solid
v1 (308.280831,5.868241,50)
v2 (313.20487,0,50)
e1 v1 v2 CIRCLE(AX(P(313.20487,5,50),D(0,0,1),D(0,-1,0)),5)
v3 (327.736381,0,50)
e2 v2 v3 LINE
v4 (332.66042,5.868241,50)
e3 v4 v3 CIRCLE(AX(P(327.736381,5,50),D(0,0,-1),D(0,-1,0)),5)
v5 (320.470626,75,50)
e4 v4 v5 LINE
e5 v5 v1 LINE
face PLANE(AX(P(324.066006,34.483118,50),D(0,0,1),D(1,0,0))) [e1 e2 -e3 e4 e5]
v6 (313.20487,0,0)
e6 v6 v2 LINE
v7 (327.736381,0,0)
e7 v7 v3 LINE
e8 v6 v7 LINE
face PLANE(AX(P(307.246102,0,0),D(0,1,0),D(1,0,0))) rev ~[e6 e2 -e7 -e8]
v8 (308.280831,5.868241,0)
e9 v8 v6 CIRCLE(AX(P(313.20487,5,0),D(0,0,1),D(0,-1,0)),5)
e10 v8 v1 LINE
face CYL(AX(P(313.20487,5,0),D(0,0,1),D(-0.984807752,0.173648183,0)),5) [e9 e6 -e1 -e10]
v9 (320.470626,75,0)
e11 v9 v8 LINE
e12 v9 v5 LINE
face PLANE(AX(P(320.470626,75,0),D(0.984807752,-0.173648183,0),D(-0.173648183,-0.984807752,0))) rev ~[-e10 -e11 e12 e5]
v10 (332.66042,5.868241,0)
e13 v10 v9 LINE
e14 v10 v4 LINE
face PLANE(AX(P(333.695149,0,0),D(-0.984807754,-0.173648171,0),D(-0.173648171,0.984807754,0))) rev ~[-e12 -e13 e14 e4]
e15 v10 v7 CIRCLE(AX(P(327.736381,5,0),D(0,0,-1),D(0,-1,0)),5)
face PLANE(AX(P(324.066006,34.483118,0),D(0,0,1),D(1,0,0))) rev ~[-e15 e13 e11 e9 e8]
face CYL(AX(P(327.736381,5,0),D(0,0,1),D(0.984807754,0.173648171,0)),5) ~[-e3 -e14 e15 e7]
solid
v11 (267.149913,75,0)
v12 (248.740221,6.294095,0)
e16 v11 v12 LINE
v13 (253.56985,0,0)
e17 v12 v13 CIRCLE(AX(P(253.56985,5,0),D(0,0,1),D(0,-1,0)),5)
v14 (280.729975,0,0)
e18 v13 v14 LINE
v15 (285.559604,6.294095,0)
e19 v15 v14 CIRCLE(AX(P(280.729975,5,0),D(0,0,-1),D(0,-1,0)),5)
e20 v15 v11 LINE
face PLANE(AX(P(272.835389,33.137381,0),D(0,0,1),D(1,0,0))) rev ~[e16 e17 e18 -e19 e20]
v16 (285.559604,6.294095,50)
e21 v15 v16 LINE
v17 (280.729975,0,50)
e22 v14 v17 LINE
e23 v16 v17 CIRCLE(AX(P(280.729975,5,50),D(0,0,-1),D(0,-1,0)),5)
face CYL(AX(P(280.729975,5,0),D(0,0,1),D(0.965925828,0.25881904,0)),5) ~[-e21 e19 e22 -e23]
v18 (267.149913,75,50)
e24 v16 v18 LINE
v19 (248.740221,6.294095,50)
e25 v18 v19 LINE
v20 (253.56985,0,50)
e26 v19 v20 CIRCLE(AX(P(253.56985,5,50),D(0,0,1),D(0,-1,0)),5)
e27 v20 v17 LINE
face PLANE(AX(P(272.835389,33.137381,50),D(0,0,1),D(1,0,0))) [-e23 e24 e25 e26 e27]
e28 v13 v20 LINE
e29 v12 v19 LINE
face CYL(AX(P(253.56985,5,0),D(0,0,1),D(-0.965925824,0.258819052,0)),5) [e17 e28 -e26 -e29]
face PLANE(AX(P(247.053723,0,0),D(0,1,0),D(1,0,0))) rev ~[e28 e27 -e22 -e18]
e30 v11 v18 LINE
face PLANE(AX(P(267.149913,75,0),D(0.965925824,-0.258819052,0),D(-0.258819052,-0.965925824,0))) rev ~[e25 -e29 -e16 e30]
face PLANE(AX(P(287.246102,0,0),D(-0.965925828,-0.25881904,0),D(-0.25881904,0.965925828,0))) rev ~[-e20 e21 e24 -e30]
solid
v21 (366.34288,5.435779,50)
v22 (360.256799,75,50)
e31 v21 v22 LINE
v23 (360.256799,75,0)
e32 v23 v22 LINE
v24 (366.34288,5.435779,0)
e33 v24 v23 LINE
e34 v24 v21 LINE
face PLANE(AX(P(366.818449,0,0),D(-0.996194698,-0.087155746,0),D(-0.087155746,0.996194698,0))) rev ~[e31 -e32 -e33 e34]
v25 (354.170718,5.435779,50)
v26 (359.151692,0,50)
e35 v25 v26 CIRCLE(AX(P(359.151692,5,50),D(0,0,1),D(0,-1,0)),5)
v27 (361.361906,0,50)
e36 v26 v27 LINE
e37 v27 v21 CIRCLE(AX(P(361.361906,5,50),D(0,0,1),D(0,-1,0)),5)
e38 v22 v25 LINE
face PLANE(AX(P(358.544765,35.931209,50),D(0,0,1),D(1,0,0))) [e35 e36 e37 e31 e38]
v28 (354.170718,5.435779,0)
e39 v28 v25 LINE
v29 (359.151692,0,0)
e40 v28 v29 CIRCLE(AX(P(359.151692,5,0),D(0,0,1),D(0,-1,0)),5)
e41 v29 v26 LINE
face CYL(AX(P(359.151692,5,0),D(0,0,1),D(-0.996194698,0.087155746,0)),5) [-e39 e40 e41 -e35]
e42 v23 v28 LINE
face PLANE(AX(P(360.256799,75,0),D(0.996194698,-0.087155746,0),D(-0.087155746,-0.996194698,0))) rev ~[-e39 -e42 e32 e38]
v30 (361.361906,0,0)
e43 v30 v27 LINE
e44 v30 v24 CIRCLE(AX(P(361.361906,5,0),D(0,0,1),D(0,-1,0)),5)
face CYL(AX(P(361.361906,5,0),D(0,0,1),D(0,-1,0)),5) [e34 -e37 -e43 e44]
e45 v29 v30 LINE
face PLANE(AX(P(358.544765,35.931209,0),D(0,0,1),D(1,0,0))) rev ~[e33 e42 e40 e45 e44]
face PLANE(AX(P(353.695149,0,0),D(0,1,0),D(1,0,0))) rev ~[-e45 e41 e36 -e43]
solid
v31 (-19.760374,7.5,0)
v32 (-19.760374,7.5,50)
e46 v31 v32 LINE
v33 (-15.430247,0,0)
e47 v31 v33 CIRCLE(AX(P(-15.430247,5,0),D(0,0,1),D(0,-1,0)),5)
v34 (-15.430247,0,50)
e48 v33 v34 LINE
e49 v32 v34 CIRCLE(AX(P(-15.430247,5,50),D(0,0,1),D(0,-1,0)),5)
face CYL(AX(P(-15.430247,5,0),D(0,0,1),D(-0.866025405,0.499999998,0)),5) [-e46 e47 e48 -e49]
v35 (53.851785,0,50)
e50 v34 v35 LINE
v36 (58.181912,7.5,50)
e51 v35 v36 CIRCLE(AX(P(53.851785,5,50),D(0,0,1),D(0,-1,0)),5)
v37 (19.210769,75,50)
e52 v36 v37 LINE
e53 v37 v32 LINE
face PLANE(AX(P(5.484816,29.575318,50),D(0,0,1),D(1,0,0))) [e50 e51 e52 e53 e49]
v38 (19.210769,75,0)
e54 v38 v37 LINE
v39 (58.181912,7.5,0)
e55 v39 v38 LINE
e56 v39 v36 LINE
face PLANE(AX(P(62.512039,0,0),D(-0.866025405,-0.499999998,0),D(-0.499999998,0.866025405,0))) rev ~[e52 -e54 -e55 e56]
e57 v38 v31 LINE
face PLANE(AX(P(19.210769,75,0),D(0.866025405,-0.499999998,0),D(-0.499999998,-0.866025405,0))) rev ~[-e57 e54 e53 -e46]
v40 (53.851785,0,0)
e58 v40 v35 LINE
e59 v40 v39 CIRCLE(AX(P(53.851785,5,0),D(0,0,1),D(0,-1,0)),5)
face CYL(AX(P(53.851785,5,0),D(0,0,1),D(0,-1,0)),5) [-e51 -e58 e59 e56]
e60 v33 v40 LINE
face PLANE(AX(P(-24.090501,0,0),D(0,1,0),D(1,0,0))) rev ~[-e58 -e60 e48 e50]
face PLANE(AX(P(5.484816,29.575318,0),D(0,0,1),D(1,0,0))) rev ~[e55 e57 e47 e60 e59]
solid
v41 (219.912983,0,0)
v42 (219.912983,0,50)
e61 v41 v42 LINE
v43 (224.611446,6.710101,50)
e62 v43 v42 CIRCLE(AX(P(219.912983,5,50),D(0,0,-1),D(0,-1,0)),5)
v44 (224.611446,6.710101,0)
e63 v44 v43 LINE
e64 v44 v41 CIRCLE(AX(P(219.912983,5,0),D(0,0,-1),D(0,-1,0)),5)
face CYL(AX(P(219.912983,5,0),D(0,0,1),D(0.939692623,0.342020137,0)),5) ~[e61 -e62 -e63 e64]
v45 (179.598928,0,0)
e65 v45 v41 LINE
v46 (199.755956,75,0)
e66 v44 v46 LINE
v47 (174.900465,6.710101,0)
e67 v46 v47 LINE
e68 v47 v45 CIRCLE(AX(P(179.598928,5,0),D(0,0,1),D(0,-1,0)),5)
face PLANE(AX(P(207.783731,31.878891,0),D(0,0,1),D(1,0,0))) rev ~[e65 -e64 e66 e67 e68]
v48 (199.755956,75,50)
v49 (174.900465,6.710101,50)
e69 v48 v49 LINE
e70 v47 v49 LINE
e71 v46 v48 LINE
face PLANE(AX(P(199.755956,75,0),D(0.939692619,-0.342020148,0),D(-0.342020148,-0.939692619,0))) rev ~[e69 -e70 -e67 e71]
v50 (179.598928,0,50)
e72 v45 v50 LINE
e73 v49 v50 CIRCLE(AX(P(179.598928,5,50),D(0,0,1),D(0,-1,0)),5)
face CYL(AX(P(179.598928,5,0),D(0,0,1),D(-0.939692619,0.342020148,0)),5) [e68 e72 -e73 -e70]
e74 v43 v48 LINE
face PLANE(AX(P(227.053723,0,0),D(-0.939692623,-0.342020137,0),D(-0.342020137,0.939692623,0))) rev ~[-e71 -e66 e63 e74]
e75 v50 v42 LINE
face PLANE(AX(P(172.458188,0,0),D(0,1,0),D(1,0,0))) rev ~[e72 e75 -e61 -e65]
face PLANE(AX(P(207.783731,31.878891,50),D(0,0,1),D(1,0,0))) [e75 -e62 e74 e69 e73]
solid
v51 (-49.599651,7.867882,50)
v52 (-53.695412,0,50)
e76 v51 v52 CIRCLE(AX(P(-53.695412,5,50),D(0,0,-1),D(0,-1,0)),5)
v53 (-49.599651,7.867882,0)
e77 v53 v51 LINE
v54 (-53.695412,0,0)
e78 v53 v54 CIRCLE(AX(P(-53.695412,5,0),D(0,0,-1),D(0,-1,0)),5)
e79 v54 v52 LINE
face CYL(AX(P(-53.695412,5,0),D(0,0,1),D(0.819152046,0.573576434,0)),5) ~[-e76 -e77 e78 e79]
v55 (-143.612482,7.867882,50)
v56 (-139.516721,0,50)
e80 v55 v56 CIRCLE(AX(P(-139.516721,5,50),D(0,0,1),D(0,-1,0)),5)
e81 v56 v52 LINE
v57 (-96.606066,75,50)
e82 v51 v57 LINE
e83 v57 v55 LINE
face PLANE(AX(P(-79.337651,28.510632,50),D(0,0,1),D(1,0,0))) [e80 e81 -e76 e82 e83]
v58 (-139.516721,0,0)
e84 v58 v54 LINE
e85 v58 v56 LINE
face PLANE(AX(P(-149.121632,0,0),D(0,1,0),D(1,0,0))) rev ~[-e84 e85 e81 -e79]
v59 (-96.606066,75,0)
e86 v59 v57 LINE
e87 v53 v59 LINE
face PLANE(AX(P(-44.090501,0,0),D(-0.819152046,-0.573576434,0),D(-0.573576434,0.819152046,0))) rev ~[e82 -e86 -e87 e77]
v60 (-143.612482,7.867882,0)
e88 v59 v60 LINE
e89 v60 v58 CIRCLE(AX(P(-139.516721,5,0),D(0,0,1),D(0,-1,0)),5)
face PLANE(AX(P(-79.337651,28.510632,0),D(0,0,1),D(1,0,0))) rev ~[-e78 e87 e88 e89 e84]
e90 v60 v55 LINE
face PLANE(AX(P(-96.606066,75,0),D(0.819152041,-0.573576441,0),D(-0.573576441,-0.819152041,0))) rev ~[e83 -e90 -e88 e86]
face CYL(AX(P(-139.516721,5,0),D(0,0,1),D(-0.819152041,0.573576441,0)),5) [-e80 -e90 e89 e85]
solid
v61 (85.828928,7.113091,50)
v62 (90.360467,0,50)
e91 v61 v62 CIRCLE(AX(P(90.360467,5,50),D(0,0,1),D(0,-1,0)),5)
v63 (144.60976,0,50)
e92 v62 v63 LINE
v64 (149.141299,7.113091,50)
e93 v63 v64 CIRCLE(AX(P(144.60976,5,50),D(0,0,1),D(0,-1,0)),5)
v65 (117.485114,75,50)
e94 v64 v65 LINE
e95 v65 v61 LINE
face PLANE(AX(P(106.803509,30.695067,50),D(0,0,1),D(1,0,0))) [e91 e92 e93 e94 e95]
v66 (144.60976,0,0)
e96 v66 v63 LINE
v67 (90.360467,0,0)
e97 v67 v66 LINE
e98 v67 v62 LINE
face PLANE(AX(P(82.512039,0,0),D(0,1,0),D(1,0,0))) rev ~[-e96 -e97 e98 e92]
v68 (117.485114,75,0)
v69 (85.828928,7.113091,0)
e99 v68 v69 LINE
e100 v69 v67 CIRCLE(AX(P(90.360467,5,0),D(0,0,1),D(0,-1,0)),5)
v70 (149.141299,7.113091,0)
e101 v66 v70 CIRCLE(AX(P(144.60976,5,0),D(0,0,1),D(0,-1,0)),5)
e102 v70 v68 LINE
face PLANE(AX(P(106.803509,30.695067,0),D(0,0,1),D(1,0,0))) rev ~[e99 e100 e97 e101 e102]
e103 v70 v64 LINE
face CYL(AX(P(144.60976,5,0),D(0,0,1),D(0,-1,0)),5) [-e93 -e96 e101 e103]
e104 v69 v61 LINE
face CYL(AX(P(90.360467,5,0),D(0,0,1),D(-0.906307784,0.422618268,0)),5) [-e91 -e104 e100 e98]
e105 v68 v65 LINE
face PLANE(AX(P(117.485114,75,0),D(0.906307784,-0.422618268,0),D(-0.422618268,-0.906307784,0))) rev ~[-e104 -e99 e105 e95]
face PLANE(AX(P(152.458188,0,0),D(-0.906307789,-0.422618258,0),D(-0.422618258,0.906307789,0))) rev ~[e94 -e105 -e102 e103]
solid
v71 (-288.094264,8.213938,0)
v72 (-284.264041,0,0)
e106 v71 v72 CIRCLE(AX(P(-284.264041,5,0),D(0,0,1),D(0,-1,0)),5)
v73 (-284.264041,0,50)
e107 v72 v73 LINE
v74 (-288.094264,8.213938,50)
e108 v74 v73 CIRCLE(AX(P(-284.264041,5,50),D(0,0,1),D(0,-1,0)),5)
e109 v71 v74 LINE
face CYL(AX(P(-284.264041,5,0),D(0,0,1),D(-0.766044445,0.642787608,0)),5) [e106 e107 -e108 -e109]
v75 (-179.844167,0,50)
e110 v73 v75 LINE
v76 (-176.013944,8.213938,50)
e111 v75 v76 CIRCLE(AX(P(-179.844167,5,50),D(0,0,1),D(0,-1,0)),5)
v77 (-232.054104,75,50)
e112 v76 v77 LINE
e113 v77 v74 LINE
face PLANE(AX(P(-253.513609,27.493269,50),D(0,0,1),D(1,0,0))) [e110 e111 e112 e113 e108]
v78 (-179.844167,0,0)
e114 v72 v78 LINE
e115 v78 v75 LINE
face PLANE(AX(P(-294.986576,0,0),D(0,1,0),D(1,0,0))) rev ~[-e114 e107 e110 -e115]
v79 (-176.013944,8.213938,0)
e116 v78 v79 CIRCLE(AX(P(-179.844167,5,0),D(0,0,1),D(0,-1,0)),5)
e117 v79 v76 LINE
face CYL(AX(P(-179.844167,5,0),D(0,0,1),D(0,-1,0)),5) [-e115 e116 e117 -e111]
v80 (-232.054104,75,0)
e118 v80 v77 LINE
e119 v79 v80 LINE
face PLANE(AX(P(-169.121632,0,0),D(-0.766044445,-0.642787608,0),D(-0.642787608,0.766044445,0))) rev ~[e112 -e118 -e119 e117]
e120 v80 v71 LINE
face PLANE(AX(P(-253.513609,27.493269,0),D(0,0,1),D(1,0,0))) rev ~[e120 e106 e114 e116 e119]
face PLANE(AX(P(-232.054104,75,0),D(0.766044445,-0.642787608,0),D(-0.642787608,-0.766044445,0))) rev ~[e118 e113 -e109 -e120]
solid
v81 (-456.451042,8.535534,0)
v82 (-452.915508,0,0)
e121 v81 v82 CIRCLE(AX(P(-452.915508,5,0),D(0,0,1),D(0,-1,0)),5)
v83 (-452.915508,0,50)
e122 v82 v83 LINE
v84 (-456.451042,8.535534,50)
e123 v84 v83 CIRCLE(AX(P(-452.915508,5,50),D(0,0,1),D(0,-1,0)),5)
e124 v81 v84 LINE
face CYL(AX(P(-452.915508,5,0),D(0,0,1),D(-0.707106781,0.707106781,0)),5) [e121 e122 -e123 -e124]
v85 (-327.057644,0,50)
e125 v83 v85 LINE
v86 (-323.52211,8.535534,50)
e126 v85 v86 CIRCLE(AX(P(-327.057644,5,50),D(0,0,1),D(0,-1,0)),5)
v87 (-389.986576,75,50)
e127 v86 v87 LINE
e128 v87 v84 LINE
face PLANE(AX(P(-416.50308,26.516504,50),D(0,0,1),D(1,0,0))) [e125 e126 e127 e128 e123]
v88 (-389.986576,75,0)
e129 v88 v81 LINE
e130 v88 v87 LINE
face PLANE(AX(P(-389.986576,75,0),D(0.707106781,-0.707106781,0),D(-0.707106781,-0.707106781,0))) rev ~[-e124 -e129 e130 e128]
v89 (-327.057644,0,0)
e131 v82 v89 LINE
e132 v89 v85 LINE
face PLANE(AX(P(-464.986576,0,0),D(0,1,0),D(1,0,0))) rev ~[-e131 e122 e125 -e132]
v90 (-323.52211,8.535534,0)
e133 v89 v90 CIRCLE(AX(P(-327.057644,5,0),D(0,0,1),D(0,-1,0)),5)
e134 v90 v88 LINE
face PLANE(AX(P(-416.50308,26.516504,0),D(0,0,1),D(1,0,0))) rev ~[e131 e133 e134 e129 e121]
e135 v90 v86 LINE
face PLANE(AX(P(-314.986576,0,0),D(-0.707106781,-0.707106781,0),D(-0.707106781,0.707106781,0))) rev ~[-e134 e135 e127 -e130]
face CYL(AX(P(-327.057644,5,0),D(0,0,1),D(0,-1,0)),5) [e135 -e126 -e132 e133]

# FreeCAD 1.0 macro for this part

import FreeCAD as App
import Part
import Sketcher
Q = App.Units.Quantity


def edges_at(feature, points):
    """Names of the edges that pass closest to the given points."""
    edges = feature.Shape.Edges
    near = lambda p: min(range(len(edges)), key=lambda i: edges[i].distToShape(Part.Vertex(*p))[0])
    return sorted({f"Edge{near(p) + 1}" for p in points})


def add_polygon(sketch, points):
    """Adds a closed chain of lines whose ends are joined by coincident constraints."""
    first, n = sketch.GeometryCount, len(points)
    for a, b in zip(points, points[1:] + points[:1]):
        sketch.addGeometry(Part.LineSegment(App.Vector(*a, 0), App.Vector(*b, 0)), False)
    for i in range(n):
        sketch.addConstraint(Sketcher.Constraint("Coincident", first + i, 2, first + (i + 1) % n, 1))

doc = App.newDocument("Part")
body = doc.addObject("PartDesign::Body", "Body")
body.AllowCompound = True

sketch1 = body.newObject("Sketcher::SketchObject", "Sketch")
sketch1.AttachmentSupport = (doc.getObject("XY_Plane"), [""])
sketch1.MapMode = "FlatFace"
add_polygon(sketch1, [(-389.986576, 75), (-464.986576, 0), (-314.986576, 0)])
add_polygon(sketch1, [(-232.054104, 75), (-294.986576, 0), (-169.121632, 0)])
add_polygon(sketch1, [(-44.090501, 0), (-96.606066, 75), (-149.121632, 0)])
add_polygon(sketch1, [(19.210769, 75), (-24.090501, 0), (62.512039, 0)])
add_polygon(sketch1, [(117.485114, 75), (82.512039, 0), (152.458188, 0)])
add_polygon(sketch1, [(227.053723, 0), (199.755956, 75), (172.458188, 0)])
add_polygon(sketch1, [(287.246102, 0), (267.149913, 75), (247.053723, 0)])
add_polygon(sketch1, [(333.695149, 0), (320.470626, 75), (307.246102, 0)])
add_polygon(sketch1, [(360.256799, 75), (353.695149, 0), (366.818449, 0)])
sketch1.addConstraint([
    Sketcher.Constraint("Horizontal", 1),
    Sketcher.Constraint("Horizontal", 4),
    Sketcher.Constraint("Horizontal", 8),
    Sketcher.Constraint("Horizontal", 10),
    Sketcher.Constraint("Horizontal", 13),
    Sketcher.Constraint("Horizontal", 17),
    Sketcher.Constraint("Horizontal", 20),
    Sketcher.Constraint("Horizontal", 23),
    Sketcher.Constraint("Horizontal", 25),
    Sketcher.Constraint("PointOnObject", 0, 2, -1),
    Sketcher.Constraint("PointOnObject", 3, 2, -1),
    Sketcher.Constraint("PointOnObject", 7, 2, -1),
    Sketcher.Constraint("PointOnObject", 9, 2, -1),
    Sketcher.Constraint("PointOnObject", 12, 2, -1),
    Sketcher.Constraint("PointOnObject", 16, 2, -1),
    Sketcher.Constraint("PointOnObject", 19, 2, -1),
    Sketcher.Constraint("PointOnObject", 22, 2, -1),
    Sketcher.Constraint("PointOnObject", 24, 2, -1),
    Sketcher.Constraint("Perpendicular", 0, 2),
    Sketcher.Constraint("Horizontal", 2, 2, 5, 2),
    Sketcher.Constraint("Horizontal", 5, 2, 6, 2),
    Sketcher.Constraint("Horizontal", 6, 2, 11, 2),
    Sketcher.Constraint("Horizontal", 11, 2, 14, 2),
    Sketcher.Constraint("Horizontal", 14, 2, 15, 2),
    Sketcher.Constraint("Horizontal", 15, 2, 18, 2),
    Sketcher.Constraint("Horizontal", 18, 2, 21, 2),
    Sketcher.Constraint("Horizontal", 21, 2, 26, 2),
    Sketcher.Constraint("Equal", 0, 2),
    Sketcher.Constraint("Equal", 3, 5),
    Sketcher.Constraint("Equal", 6, 7),
    Sketcher.Constraint("Equal", 9, 11),
    Sketcher.Constraint("Equal", 12, 14),
    Sketcher.Constraint("Equal", 15, 16),
    Sketcher.Constraint("Equal", 18, 19),
    Sketcher.Constraint("Equal", 21, 22),
    Sketcher.Constraint("Equal", 24, 26),
    Sketcher.Constraint("DistanceX", 1, 1, 1, 2, 150.0),
    Sketcher.Constraint("Angle", 3, Q("-130 deg")),
    Sketcher.Constraint("Angle", 6, Q("125 deg")),
    Sketcher.Constraint("Angle", 9, Q("-120 deg")),
    Sketcher.Constraint("Angle", 12, Q("-115 deg")),
    Sketcher.Constraint("Angle", 15, Q("110 deg")),
    Sketcher.Constraint("Angle", 18, Q("105 deg")),
    Sketcher.Constraint("Angle", 21, Q("100 deg")),
    Sketcher.Constraint("Angle", 24, Q("-95 deg")),
    Sketcher.Constraint("DistanceX", 1, 2, 3, 2, 20.0),
    Sketcher.Constraint("DistanceX", 4, 2, 7, 2, 20.0),
    Sketcher.Constraint("DistanceX", 8, 2, 9, 2, 20.0),
    Sketcher.Constraint("DistanceX", 10, 2, 12, 2, 20.0),
    Sketcher.Constraint("DistanceX", 13, 2, 16, 2, 20.0),
    Sketcher.Constraint("DistanceX", 17, 2, 19, 2, 20.0),
    Sketcher.Constraint("DistanceX", 20, 2, 22, 2, 20.0),
    Sketcher.Constraint("DistanceX", 23, 2, 24, 2, 20.0),
    Sketcher.Constraint("DistanceX", 8, 2, -1, 1, 44.090501),
])
pad1 = body.newObject("PartDesign::Pad", "Pad")
pad1.Profile = sketch1
pad1.Length = 50
doc.recompute()

fillet = body.newObject("PartDesign::Fillet", "Fillet")
fillet.Base = (pad1, edges_at(pad1, [
    (-464.987, 0, 25),
    (-314.987, 0, 25),
    (-294.987, 0, 25),
    (-169.122, 0, 25),
    (-149.122, 0, 25),
    (-44.091, 0, 25),
    (-24.091, 0, 25),
    (62.512, 0, 25),
    (82.512, 0, 25),
    (152.458, 0, 25),
    (172.458, 0, 25),
    (227.054, 0, 25),
    (247.054, 0, 25),
    (287.246, 0, 25),
    (307.246, 0, 25),
    (333.695, 0, 25),
    (353.695, 0, 25),
    (366.818, 0, 25),
]))
fillet.Radius = 5

doc.recompute()
